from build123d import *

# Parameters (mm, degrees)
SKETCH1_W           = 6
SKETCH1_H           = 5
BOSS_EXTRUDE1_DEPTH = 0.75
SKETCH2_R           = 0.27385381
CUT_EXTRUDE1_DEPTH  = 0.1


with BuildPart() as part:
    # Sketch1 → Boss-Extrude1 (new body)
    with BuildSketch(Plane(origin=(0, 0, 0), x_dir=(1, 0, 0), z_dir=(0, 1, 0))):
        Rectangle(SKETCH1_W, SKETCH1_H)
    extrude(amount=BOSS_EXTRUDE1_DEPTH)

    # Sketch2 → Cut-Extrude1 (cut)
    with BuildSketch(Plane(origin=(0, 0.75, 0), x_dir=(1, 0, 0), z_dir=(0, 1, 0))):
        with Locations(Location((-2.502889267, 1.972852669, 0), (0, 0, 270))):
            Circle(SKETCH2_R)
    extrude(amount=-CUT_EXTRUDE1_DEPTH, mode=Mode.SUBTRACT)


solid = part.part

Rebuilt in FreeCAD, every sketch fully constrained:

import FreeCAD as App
import Part
import Sketcher
from FreeCAD import Vector


def add_polygon(sketch, points):
    """Adds a closed chain of lines whose ends are joined by coincident constraints."""
    first, n = sketch.GeometryCount, len(points)
    for a, b in zip(points, points[1:] + points[:1]):
        sketch.addGeometry(Part.LineSegment(App.Vector(*a, 0), App.Vector(*b, 0)), False)
    for i in range(n):
        sketch.addConstraint(Sketcher.Constraint("Coincident", first + i, 2, first + (i + 1) % n, 1))

doc = App.newDocument("Part")
params = doc.addObject("Spreadsheet::Sheet", "Params")
for row, (alias, value) in enumerate([
    ("sketch1_width", "6 mm"),
    ("sketch1_height", "5 mm"),
    ("pad1_length", "0.75 mm"),
    ("pocket1_length", "0.1 mm"),
], start=1):
    params.set(f"A{row}", alias)
    params.set(f"B{row}", "=" + value)
    params.setAlias(f"B{row}", alias)

body = doc.addObject("PartDesign::Body", "Body")

sketch1 = body.newObject("Sketcher::SketchObject", "Sketch")
sketch1.AttachmentSupport = (doc.getObject("XZ_Plane"), [""])
sketch1.MapMode = "FlatFace"
add_polygon(sketch1, [(-3, -2), (-3, 2), (3, 2), (3, -2)])
sketch1.addConstraint([
    Sketcher.Constraint("Vertical", 0),
    Sketcher.Constraint("Horizontal", 1),
    Sketcher.Constraint("Vertical", 2),
    Sketcher.Constraint("Horizontal", 3),
    Sketcher.Constraint("Symmetric", 0, 2, 2, 2, -1, 1),
    Sketcher.Constraint("DistanceX", 1, 1, 1, 2, 6.0),
    Sketcher.Constraint("DistanceY", 0, 1, 0, 2, 5.0),
])
sketch1.setExpression("Constraints[9]", "Params.sketch1_width")
sketch1.setExpression("Constraints[10]", "Params.sketch1_height")
pad1 = body.newObject("PartDesign::Pad", "Pad")
pad1.Profile = sketch1
pad1.setExpression("Length", "Params.pad1_length")
pad1.Reversed = True

sketch2 = body.newObject("Sketcher::SketchObject", "Sketch001")
sketch2.AttachmentSupport = (doc.getObject("XZ_Plane"), [""])
sketch2.MapMode = "FlatFace"
sketch2.AttachmentOffset = App.Placement(Vector(0, 0, -0.75), App.Rotation())
sketch2.addGeometry(Part.Circle(Vector(-2.5, -1.97, 0), Vector(0, 0, 1), 0.27), False)
sketch2.addConstraint([
    Sketcher.Constraint("Diameter", 0, 0.547708),
    Sketcher.Constraint("DistanceX", 0, 3, -1, 1, 2.502889),
    Sketcher.Constraint("DistanceY", 0, 3, -1, 1, 1.972853),
])
pocket1 = body.newObject("PartDesign::Pocket", "Pocket")
pocket1.Profile = sketch2
pocket1.setExpression("Length", "Params.pocket1_length")
pocket1.Reversed = True

doc.recompute()
